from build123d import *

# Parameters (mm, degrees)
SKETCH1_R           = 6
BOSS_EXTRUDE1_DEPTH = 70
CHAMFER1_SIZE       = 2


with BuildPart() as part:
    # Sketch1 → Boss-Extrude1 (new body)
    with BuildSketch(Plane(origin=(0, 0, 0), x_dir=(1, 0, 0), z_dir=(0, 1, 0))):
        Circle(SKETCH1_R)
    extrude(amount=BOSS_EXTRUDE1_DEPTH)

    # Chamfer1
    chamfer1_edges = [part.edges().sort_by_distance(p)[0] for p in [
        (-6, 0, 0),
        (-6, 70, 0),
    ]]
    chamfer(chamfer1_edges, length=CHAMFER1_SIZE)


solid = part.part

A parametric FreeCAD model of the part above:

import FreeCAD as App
import Part
import Sketcher
from FreeCAD import Vector


def edges_at(feature, points):
    """Names of the edges that pass closest to the given points."""
    edges = feature.Shape.Edges
    near = lambda p: min(range(len(edges)), key=lambda i: edges[i].distToShape(Part.Vertex(*p))[0])
    return sorted({f"Edge{near(p) + 1}" for p in points})

doc = App.newDocument("Part")
body = doc.addObject("PartDesign::Body", "Body")

sketch1 = body.newObject("Sketcher::SketchObject", "Sketch")
sketch1.AttachmentSupport = (doc.getObject("XZ_Plane"), [""])
sketch1.MapMode = "FlatFace"
sketch1.addGeometry(Part.Circle(Vector(0, 0, 0), Vector(0, 0, 1), 6), False)
sketch1.addConstraint([
    Sketcher.Constraint("Coincident", 0, 3, -1, 1),
    Sketcher.Constraint("Diameter", 0, 12.0),
])
pad1 = body.newObject("PartDesign::Pad", "Pad")
pad1.Profile = sketch1
pad1.Length = 70
pad1.Reversed = True
doc.recompute()

chamfer = body.newObject("PartDesign::Chamfer", "Chamfer")
chamfer.Base = (pad1, edges_at(pad1, [(-6, 0, 0), (-6, 70, 0)]))
chamfer.Size = 2

doc.recompute()
